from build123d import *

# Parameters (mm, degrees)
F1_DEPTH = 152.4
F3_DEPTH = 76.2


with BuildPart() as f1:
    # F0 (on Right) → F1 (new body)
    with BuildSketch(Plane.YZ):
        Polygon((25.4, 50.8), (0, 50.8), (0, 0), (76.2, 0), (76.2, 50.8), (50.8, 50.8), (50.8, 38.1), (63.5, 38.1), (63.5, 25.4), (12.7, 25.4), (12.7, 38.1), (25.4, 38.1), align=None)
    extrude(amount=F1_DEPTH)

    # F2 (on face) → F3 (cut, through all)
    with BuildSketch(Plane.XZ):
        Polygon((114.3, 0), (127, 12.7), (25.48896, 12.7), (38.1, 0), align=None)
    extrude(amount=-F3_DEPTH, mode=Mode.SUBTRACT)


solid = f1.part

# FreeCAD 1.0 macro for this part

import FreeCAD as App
import Part
import Sketcher

V = App.Vector
Q = App.Units.Quantity

doc = App.newDocument("Part")
body = doc.addObject("PartDesign::Body", "Body")

# Sketch on YZ plane
sketch1 = body.newObject("Sketcher::SketchObject", "Sketch")
sketch1.AttachmentSupport = (doc.getObject("YZ_Plane"), [""])
sketch1.MapMode = "FlatFace"
sketch1.addGeometry([
    Part.LineSegment(V(25.4, 50.8, 0), V(0, 50.8, 0)),  # 0
    Part.LineSegment(V(0, 50.8, 0), V(0, 0, 0)),  # 1
    Part.LineSegment(V(0, 0, 0), V(76.2, 0, 0)),  # 2
    Part.LineSegment(V(76.2, 0, 0), V(76.2, 50.8, 0)),  # 3
    Part.LineSegment(V(76.2, 50.8, 0), V(50.8, 50.8, 0)),  # 4
    Part.LineSegment(V(50.8, 50.8, 0), V(50.8, 38.1, 0)),  # 5
    Part.LineSegment(V(50.8, 38.1, 0), V(63.5, 38.1, 0)),  # 6
    Part.LineSegment(V(63.5, 38.1, 0), V(63.5, 25.4, 0)),  # 7
    Part.LineSegment(V(63.5, 25.4, 0), V(12.7, 25.4, 0)),  # 8
    Part.LineSegment(V(12.7, 25.4, 0), V(12.7, 38.1, 0)),  # 9
    Part.LineSegment(V(12.7, 38.1, 0), V(25.4, 38.1, 0)),  # 10
    Part.LineSegment(V(25.4, 38.1, 0), V(25.4, 50.8, 0)),  # 11
], False)
sketch1.addConstraint([
    Sketcher.Constraint("Coincident", 0, 2, 1, 1),
    Sketcher.Constraint("Coincident", 1, 2, 2, 1),
    Sketcher.Constraint("Coincident", 2, 2, 3, 1),
    Sketcher.Constraint("Coincident", 3, 2, 4, 1),
    Sketcher.Constraint("Coincident", 4, 2, 5, 1),
    Sketcher.Constraint("Coincident", 5, 2, 6, 1),
    Sketcher.Constraint("Coincident", 6, 2, 7, 1),
    Sketcher.Constraint("Coincident", 7, 2, 8, 1),
    Sketcher.Constraint("Coincident", 8, 2, 9, 1),
    Sketcher.Constraint("Coincident", 9, 2, 10, 1),
    Sketcher.Constraint("Coincident", 10, 2, 11, 1),
    Sketcher.Constraint("Coincident", 11, 2, 0, 1),
    Sketcher.Constraint("Horizontal", 0),
    Sketcher.Constraint("Vertical", 1),
    Sketcher.Constraint("Horizontal", 2),
    Sketcher.Constraint("Vertical", 3),
    Sketcher.Constraint("Horizontal", 4),
    Sketcher.Constraint("Vertical", 5),
    Sketcher.Constraint("Horizontal", 6),
    Sketcher.Constraint("Vertical", 7),
    Sketcher.Constraint("Horizontal", 8),
    Sketcher.Constraint("Vertical", 9),
    Sketcher.Constraint("Horizontal", 10),
    Sketcher.Constraint("Vertical", 11),
    Sketcher.Constraint("Coincident", 1, 2, -1, 1),
    Sketcher.Constraint("Horizontal", 0, 2, 3, 2),
    Sketcher.Constraint("Horizontal", 6, 2, 9, 2),
    Sketcher.Constraint("Equal", 0, 4),
    Sketcher.Constraint("Equal", 6, 10),
    Sketcher.Constraint("Equal", 8, 1),
    Sketcher.Constraint("Equal", 10, 5),
    Sketcher.Constraint("Equal", 5, 7),
    Sketcher.Constraint("DistanceX", 0, 2, 0, 1, Q("1 in")),
    Sketcher.Constraint("DistanceX", 2, 1, 2, 2, Q("3 in")),
    Sketcher.Constraint("DistanceX", 8, 2, 8, 1, Q("2 in")),
])
pad1 = body.newObject("PartDesign::Pad", "Pad")
pad1.Profile = sketch1
pad1.Length = Q("6 in")

# Sketch on XZ plane
sketch2 = body.newObject("Sketcher::SketchObject", "Sketch001")
sketch2.AttachmentSupport = (doc.getObject("XZ_Plane"), [""])
sketch2.MapMode = "FlatFace"
sketch2.addGeometry([
    Part.LineSegment(V(114.3, 0, 0), V(127, 12.7, 0)),
    Part.LineSegment(V(127, 12.7, 0), V(25.48896, 12.7, 0)),
    Part.LineSegment(V(25.48896, 12.7, 0), V(38.1, 0, 0)),
    Part.LineSegment(V(38.1, 0, 0), V(114.3, 0, 0)),
], False)
sketch2.addConstraint([
    Sketcher.Constraint("Coincident", 0, 2, 1, 1),
    Sketcher.Constraint("Coincident", 1, 2, 2, 1),
    Sketcher.Constraint("Coincident", 2, 2, 3, 1),
    Sketcher.Constraint("Coincident", 3, 2, 0, 1),
    Sketcher.Constraint("Horizontal", 1),
    Sketcher.Constraint("Horizontal", 3),
    Sketcher.Constraint("PointOnObject", 2, 2, -1),
    Sketcher.Constraint("DistanceX", 3, 1, 3, 2, Q("3 in")),
    Sketcher.Constraint("DistanceX", -1, 1, 0, 2, Q("5 in")),
    Sketcher.Constraint("Angle", 0, Q("45 deg")),
    Sketcher.Constraint("DistanceY", -1, 1, 0, 2, Q("0.5 in")),
    Sketcher.Constraint("DistanceX", 1, 2, 1, 1, 101.51104),
])
pocket1 = body.newObject("PartDesign::Pocket", "Pocket")
pocket1.Profile = sketch2
pocket1.Type = "ThroughAll"

doc.recompute()
